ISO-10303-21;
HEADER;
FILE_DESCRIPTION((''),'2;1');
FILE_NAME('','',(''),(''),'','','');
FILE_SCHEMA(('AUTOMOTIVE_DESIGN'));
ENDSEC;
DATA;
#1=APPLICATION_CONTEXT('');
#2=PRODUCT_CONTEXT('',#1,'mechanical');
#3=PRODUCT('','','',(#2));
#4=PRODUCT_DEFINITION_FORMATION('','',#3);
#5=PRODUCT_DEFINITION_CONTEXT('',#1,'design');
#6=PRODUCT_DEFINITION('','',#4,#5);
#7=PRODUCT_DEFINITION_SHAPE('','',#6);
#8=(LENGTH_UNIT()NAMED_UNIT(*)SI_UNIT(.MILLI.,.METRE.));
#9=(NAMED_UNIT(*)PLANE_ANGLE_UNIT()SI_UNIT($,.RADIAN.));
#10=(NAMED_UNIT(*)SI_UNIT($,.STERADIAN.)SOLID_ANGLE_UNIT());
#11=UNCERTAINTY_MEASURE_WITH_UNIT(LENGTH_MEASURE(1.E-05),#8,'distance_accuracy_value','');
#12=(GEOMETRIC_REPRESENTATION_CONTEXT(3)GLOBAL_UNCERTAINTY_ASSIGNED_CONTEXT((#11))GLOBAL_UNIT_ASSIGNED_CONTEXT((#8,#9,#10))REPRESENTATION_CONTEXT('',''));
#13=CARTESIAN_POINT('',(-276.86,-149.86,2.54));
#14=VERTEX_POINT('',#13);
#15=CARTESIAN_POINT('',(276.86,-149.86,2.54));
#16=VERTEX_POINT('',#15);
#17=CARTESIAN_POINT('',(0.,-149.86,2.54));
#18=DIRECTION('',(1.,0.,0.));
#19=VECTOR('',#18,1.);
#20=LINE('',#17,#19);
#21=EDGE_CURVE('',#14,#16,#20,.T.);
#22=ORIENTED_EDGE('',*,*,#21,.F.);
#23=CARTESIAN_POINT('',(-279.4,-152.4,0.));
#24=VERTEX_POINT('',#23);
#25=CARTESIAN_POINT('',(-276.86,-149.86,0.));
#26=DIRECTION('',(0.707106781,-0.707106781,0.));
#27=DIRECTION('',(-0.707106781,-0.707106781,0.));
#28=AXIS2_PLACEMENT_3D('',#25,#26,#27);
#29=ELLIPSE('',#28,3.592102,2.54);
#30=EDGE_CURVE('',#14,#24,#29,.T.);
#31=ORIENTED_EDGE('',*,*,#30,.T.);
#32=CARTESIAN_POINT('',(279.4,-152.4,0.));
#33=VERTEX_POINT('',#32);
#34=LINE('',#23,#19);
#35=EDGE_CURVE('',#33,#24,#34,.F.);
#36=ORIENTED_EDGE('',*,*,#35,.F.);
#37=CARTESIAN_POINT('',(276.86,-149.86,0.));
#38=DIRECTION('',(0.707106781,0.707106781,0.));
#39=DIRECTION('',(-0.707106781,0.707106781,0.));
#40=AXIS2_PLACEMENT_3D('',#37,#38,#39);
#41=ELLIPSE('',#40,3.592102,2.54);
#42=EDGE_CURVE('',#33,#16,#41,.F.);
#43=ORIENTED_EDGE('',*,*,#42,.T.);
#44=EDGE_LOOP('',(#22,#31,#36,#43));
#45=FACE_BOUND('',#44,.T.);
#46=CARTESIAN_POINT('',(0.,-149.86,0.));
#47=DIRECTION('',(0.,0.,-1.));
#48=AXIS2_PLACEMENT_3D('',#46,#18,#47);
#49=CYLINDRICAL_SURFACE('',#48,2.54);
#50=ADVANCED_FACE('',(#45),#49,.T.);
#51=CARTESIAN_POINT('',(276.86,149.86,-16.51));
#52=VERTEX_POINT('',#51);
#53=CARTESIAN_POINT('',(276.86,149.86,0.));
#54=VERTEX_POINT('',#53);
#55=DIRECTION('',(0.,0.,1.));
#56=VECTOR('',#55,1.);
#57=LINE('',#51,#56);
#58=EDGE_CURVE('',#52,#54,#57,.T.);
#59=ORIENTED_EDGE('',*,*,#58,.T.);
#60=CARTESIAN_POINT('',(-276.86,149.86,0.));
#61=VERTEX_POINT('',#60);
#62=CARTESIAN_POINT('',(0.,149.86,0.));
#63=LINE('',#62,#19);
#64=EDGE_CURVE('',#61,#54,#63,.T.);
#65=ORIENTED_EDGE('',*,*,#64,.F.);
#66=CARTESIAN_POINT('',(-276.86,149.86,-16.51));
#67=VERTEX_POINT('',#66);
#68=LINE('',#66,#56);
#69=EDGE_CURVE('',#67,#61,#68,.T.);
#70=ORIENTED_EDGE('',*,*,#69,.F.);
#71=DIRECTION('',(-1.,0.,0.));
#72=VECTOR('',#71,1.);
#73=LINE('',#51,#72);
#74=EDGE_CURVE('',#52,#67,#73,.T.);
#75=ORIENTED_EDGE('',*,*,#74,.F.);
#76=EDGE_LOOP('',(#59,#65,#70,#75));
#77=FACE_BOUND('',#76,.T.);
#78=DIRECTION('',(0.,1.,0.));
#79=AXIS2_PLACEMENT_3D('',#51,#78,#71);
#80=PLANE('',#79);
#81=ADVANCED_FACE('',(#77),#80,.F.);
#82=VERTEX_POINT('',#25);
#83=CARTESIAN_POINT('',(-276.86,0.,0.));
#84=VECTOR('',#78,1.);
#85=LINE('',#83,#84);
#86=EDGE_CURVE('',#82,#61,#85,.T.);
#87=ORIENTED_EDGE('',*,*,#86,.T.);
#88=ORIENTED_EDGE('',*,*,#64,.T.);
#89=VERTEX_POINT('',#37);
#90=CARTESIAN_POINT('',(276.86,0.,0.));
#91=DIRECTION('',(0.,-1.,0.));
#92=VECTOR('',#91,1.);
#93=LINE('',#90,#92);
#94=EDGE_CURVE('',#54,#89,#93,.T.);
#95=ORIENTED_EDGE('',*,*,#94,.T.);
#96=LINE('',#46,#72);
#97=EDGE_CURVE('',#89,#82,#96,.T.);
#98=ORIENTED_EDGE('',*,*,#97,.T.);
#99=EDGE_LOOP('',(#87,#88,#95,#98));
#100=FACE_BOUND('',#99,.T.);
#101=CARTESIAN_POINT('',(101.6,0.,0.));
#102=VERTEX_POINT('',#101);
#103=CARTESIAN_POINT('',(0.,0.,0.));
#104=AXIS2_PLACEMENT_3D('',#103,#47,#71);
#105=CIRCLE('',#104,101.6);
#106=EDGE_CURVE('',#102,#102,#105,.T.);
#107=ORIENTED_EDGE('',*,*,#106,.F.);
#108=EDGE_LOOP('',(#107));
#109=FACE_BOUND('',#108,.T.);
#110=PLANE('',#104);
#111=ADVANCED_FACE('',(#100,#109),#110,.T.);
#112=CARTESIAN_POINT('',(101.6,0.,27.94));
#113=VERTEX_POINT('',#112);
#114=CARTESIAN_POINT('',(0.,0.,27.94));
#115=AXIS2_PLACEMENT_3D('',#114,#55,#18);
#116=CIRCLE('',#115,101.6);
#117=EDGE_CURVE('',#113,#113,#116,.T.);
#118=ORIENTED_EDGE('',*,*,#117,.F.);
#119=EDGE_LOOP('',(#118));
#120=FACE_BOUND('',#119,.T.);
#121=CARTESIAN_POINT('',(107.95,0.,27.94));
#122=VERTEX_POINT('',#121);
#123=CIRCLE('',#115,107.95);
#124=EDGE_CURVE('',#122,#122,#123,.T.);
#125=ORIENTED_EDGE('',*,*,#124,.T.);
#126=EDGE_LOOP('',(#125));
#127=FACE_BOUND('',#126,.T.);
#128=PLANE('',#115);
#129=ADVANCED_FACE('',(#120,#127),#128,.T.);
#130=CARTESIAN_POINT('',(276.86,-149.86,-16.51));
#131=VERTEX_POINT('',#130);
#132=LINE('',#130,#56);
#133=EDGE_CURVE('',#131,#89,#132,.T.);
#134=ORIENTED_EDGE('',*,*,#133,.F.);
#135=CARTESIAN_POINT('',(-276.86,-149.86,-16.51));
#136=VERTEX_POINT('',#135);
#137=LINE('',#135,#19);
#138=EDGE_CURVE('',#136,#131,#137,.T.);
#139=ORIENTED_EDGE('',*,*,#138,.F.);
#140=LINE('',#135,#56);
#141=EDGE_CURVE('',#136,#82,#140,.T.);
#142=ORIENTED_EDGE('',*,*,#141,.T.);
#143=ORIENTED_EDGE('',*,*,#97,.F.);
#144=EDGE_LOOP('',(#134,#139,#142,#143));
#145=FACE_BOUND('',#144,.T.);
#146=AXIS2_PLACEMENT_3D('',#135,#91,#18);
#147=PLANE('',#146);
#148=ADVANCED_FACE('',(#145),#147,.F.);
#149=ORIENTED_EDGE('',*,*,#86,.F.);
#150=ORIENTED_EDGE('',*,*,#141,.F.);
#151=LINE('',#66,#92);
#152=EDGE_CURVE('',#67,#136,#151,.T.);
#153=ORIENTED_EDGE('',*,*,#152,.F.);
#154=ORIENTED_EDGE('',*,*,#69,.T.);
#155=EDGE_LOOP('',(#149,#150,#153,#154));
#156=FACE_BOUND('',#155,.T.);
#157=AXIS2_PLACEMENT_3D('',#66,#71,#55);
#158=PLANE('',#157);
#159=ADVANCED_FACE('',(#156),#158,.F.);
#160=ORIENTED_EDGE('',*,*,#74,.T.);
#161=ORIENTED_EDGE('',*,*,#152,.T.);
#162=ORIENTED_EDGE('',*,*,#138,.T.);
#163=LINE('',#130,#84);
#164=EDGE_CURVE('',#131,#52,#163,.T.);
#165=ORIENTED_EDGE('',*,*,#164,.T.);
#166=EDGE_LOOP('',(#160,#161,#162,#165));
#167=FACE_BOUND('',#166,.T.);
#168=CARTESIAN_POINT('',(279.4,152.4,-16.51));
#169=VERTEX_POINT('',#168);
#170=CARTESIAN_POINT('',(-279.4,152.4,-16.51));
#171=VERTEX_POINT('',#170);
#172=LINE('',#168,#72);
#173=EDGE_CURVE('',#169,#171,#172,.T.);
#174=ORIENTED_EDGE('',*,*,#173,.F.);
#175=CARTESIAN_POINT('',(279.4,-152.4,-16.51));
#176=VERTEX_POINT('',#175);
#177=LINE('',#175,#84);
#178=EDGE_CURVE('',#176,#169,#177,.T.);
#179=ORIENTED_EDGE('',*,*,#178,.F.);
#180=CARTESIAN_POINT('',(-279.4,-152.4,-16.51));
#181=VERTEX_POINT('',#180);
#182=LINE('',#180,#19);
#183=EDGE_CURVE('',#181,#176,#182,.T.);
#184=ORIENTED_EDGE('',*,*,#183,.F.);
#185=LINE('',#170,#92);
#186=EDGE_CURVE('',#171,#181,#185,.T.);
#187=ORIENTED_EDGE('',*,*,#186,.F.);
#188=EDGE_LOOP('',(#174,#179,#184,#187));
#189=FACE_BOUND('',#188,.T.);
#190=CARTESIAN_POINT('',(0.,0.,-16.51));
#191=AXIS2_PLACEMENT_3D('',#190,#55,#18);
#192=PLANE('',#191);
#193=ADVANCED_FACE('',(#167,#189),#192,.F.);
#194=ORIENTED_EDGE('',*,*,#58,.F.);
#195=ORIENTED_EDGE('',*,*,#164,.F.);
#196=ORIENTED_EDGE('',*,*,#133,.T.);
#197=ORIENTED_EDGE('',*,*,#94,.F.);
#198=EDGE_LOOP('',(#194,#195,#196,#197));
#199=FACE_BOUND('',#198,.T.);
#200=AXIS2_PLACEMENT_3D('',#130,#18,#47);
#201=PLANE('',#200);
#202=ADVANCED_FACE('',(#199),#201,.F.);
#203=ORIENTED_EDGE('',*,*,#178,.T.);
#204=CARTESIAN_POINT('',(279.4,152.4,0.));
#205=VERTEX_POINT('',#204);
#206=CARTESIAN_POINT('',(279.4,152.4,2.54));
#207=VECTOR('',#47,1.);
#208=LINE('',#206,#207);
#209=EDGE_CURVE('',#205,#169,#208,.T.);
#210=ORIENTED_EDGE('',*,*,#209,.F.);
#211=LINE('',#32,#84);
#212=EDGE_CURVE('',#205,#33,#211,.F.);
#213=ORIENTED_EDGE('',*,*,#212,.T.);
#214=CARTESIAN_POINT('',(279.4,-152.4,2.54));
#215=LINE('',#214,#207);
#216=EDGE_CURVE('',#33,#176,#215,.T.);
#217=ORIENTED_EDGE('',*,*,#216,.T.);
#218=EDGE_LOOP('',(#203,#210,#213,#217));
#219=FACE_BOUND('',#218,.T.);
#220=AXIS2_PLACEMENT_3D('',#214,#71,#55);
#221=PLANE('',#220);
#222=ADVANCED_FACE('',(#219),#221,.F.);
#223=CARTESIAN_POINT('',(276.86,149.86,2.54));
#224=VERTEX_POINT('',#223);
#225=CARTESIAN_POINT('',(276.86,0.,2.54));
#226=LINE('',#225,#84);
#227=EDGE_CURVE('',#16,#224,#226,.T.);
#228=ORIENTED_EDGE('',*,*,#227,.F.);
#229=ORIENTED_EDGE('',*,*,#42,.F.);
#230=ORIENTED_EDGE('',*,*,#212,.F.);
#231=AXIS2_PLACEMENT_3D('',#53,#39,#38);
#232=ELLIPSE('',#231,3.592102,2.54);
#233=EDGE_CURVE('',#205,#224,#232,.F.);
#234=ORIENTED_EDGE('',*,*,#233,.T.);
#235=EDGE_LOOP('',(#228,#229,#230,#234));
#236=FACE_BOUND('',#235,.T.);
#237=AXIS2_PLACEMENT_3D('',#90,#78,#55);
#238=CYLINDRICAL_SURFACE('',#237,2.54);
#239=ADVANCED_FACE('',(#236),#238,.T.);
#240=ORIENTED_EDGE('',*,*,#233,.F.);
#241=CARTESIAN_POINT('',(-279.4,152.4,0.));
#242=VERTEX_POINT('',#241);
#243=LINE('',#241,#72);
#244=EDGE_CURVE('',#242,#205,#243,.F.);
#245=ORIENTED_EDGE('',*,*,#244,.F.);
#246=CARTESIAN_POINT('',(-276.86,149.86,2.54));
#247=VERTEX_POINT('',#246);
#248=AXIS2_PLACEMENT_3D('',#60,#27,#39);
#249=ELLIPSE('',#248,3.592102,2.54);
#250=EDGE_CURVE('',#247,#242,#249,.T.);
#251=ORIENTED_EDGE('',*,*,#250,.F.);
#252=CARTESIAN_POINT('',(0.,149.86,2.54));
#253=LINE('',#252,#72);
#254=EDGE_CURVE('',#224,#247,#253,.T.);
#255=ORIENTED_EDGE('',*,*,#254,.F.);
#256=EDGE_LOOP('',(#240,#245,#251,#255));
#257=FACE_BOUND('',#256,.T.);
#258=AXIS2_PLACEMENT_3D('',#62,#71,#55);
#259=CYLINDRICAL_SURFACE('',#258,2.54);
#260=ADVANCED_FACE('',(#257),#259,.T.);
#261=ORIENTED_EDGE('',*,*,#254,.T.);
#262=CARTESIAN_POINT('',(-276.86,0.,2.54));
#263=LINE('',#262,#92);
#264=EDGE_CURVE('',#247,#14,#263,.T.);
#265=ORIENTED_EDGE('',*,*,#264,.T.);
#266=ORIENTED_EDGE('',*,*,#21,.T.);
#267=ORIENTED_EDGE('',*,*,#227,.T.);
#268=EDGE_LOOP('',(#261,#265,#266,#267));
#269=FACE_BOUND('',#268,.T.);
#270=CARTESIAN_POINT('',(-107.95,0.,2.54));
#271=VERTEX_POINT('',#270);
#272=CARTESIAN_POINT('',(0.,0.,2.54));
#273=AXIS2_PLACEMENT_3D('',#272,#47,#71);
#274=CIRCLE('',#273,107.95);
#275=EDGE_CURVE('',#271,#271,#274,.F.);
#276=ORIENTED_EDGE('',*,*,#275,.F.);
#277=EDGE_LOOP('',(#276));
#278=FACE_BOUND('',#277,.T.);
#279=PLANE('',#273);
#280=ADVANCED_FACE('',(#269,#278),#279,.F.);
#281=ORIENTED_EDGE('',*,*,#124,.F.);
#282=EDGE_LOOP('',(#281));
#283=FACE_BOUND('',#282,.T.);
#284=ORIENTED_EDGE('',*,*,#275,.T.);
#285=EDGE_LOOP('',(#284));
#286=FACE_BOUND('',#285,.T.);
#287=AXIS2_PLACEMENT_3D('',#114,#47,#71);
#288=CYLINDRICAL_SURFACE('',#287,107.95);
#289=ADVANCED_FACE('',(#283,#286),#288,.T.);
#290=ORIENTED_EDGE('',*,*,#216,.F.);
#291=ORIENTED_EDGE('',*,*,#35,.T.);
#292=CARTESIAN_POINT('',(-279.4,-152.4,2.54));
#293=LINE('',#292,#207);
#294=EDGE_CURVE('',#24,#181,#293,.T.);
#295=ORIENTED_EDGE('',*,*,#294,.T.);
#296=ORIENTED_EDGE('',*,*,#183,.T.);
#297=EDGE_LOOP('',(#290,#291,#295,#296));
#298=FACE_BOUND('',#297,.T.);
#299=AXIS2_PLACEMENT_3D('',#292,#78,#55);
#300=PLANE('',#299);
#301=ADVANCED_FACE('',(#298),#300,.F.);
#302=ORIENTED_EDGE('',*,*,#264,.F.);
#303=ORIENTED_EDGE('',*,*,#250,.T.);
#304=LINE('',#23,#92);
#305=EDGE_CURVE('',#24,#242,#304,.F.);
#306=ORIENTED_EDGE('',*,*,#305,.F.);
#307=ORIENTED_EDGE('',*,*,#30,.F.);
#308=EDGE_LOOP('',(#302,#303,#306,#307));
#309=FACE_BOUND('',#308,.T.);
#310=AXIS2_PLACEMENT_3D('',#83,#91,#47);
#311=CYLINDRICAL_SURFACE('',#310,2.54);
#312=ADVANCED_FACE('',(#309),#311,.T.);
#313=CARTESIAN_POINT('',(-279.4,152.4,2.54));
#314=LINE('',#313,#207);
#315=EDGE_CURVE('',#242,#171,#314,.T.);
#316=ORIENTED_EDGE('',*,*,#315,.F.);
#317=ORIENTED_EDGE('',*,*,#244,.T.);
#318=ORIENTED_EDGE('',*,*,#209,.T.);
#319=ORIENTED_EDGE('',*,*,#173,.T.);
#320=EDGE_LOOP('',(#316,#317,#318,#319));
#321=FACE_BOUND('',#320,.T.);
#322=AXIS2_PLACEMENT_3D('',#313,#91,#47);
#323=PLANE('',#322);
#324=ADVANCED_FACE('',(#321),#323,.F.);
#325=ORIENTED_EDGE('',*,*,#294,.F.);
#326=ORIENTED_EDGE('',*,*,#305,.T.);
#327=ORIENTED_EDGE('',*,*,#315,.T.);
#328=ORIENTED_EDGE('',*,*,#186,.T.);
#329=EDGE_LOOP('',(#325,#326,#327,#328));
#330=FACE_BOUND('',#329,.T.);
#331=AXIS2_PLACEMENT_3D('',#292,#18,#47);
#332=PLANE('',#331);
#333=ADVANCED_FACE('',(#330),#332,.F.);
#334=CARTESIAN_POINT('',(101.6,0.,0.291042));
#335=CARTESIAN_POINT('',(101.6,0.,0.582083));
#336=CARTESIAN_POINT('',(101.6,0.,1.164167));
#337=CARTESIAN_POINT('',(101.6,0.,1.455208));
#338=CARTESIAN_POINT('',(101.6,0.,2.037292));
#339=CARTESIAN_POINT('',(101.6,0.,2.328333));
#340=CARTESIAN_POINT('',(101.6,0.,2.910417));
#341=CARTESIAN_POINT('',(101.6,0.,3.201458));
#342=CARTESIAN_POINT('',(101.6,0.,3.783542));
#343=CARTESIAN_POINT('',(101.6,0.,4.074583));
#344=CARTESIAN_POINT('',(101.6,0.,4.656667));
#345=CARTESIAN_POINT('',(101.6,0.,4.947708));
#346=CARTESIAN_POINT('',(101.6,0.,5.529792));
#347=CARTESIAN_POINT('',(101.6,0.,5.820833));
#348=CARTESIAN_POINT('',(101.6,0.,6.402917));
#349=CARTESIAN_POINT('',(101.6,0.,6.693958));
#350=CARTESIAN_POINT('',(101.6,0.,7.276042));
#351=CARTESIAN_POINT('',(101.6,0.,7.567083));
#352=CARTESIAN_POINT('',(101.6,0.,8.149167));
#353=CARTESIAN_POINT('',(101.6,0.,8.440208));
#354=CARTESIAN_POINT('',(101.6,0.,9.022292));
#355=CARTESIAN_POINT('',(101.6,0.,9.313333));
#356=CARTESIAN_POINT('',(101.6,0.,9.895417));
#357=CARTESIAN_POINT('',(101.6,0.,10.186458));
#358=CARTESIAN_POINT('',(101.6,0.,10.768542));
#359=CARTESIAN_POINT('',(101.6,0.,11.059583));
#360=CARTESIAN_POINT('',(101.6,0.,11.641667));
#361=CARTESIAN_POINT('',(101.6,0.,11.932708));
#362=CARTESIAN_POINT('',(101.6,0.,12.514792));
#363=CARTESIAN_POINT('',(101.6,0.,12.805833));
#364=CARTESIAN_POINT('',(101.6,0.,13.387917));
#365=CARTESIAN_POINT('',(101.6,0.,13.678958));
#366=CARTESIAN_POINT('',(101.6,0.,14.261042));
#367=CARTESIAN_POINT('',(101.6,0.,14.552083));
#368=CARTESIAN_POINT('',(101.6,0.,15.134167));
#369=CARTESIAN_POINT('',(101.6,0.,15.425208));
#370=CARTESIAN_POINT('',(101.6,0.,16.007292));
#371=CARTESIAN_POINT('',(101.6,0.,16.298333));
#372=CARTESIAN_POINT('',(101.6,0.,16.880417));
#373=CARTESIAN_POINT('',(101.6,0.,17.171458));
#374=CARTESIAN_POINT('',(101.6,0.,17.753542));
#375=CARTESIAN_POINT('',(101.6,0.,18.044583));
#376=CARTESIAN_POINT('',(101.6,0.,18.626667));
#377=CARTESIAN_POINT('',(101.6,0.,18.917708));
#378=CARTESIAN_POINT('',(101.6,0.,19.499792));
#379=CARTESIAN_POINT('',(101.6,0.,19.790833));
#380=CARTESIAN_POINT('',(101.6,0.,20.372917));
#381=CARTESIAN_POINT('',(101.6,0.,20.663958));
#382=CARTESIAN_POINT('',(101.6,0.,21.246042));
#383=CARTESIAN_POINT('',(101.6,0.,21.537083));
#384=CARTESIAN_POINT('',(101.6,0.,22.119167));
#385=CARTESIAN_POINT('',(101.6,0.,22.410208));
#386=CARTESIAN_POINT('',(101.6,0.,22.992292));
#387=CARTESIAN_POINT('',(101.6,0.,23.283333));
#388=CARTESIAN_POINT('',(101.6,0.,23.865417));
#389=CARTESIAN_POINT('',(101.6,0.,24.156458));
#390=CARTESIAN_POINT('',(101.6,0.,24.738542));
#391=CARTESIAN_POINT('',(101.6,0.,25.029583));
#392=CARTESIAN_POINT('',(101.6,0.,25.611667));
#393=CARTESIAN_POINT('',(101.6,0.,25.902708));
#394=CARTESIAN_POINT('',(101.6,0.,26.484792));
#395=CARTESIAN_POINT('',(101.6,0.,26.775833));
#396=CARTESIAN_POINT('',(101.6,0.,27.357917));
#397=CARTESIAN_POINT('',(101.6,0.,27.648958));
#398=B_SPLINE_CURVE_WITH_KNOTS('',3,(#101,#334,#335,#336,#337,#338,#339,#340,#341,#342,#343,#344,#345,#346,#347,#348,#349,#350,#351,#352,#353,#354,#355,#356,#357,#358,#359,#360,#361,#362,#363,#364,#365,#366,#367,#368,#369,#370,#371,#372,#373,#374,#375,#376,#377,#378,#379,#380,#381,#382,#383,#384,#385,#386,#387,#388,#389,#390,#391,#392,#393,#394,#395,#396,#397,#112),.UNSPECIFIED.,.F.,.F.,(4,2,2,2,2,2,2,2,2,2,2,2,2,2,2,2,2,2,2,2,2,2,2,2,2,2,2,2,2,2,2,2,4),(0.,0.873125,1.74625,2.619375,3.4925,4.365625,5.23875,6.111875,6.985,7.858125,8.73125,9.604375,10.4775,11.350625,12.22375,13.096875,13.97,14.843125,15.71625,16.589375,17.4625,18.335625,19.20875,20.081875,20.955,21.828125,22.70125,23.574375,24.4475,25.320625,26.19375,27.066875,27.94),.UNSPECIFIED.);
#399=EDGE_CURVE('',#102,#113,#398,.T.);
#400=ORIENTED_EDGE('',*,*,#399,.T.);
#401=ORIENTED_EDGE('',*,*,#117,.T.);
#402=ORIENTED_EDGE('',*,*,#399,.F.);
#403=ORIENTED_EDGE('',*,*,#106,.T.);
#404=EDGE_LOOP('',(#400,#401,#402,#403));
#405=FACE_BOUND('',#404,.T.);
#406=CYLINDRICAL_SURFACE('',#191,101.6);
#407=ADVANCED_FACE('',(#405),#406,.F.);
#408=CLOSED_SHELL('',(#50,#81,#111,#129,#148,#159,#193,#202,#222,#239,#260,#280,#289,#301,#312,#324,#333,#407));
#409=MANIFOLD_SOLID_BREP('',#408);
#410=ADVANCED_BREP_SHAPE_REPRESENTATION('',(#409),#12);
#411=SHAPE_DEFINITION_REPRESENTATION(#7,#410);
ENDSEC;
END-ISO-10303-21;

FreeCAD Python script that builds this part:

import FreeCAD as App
import Part
import Sketcher
Q = App.Units.Quantity


def edges_at(feature, points):
    """Names of the edges that pass closest to the given points."""
    edges = feature.Shape.Edges
    near = lambda p: min(range(len(edges)), key=lambda i: edges[i].distToShape(Part.Vertex(*p))[0])
    return sorted({f"Edge{near(p) + 1}" for p in points})

doc = App.newDocument("Part")
body = doc.addObject("PartDesign::Body", "Body")

# Sketch on XY plane
sketch1 = body.newObject("Sketcher::SketchObject", "Sketch")
sketch1.AttachmentSupport = (doc.getObject("XY_Plane"), [""])
sketch1.MapMode = "FlatFace"
sketch1.addGeometry([
    Part.LineSegment(App.Vector(-279, 152, 0), App.Vector(-279, -152, 0)),
    Part.LineSegment(App.Vector(-279, -152, 0), App.Vector(279, -152, 0)),
    Part.LineSegment(App.Vector(279, -152, 0), App.Vector(279, 152, 0)),
    Part.LineSegment(App.Vector(279, 152, 0), App.Vector(-279, 152, 0)),
], False)
sketch1.addConstraint([
    Sketcher.Constraint("Coincident", 0, 2, 1, 1),
    Sketcher.Constraint("Coincident", 1, 2, 2, 1),
    Sketcher.Constraint("Coincident", 2, 2, 3, 1),
    Sketcher.Constraint("Coincident", 3, 2, 0, 1),
    Sketcher.Constraint("Vertical", 0),
    Sketcher.Constraint("Horizontal", 1),
    Sketcher.Constraint("Vertical", 2),
    Sketcher.Constraint("Horizontal", 3),
    Sketcher.Constraint("Symmetric", 0, 2, 2, 2, -1, 1),
    Sketcher.Constraint("DistanceX", 1, 1, 1, 2, Q("22 in")),
    Sketcher.Constraint("DistanceY", 0, 2, 0, 1, Q("12 in")),
])
pad1 = body.newObject("PartDesign::Pad", "Pad")
pad1.Profile = sketch1
pad1.Length = Q("0.1 in")

# Sketch on XY plane
sketch2 = body.newObject("Sketcher::SketchObject", "Sketch001")
sketch2.AttachmentSupport = (doc.getObject("XY_Plane"), [""])
sketch2.MapMode = "FlatFace"
sketch2.AttachmentOffset = App.Placement(App.Vector(0, 0, 0.1 * 25.4), App.Rotation())
sketch2.addGeometry([
    Part.LineSegment(App.Vector(-279, 152, 0), App.Vector(-279, -152, 0)),  # 0
    Part.LineSegment(App.Vector(-279, -152, 0), App.Vector(279, -152, 0)),  # 1
    Part.LineSegment(App.Vector(279, -152, 0), App.Vector(279, 152, 0)),  # 2
    Part.LineSegment(App.Vector(279, 152, 0), App.Vector(-279, 152, 0)),  # 3
    Part.LineSegment(App.Vector(277, -150, 0), App.Vector(-277, -150, 0)),  # 4
    Part.LineSegment(App.Vector(-277, -150, 0), App.Vector(-277, 150, 0)),  # 5
    Part.LineSegment(App.Vector(-277, 150, 0), App.Vector(277, 150, 0)),  # 6
    Part.LineSegment(App.Vector(277, 150, 0), App.Vector(277, -150, 0)),  # 7
], False)
sketch2.addConstraint([
    Sketcher.Constraint("Coincident", 0, 2, 1, 1),
    Sketcher.Constraint("Coincident", 1, 2, 2, 1),
    Sketcher.Constraint("Coincident", 2, 2, 3, 1),
    Sketcher.Constraint("Coincident", 3, 2, 0, 1),
    Sketcher.Constraint("Coincident", 4, 2, 5, 1),
    Sketcher.Constraint("Coincident", 5, 2, 6, 1),
    Sketcher.Constraint("Coincident", 6, 2, 7, 1),
    Sketcher.Constraint("Coincident", 7, 2, 4, 1),
    Sketcher.Constraint("Vertical", 0),
    Sketcher.Constraint("Horizontal", 1),
    Sketcher.Constraint("Vertical", 2),
    Sketcher.Constraint("Horizontal", 3),
    Sketcher.Constraint("Horizontal", 4),
    Sketcher.Constraint("Vertical", 5),
    Sketcher.Constraint("Horizontal", 6),
    Sketcher.Constraint("Vertical", 7),
    Sketcher.Constraint("Symmetric", 0, 2, 2, 2, -1, 1),
    Sketcher.Constraint("Symmetric", 4, 2, 6, 2, -1, 1),
    Sketcher.Constraint("DistanceX", 1, 1, 1, 2, Q("22 in")),
    Sketcher.Constraint("DistanceY", 0, 2, 0, 1, Q("12 in")),
    Sketcher.Constraint("DistanceX", 4, 2, 4, 1, Q("21.8 in")),
    Sketcher.Constraint("DistanceY", 5, 1, 5, 2, Q("11.8 in")),
])
pad2 = body.newObject("PartDesign::Pad", "Pad001")
pad2.Profile = sketch2
pad2.Length = Q("0.75 in")
pad2.Reversed = True
doc.recompute()

fillet = body.newObject("PartDesign::Fillet", "Fillet")
fillet.Base = (pad2, edges_at(pad2, [
    (-279.4, 0, 2.54),
    (0, -152.4, 2.54),
    (279.4, 0, 2.54),
    (0, 152.4, 2.54),
]))
fillet.Radius = Q("0.1 in")

# Sketch on XY plane
sketch3 = body.newObject("Sketcher::SketchObject", "Sketch002")
sketch3.AttachmentSupport = (doc.getObject("XY_Plane"), [""])
sketch3.MapMode = "FlatFace"
sketch3.AttachmentOffset = App.Placement(App.Vector(0, 0, 0.1 * 25.4), App.Rotation())
sketch3.addGeometry(Part.Circle(App.Vector(0, 0, 0), App.Vector(0, 0, 1), 102), False)
sketch3.addConstraint([
    Sketcher.Constraint("Coincident", 0, 3, -1, 1),
    Sketcher.Constraint("Diameter", 0, Q("8 in")),
])
pocket1 = body.newObject("PartDesign::Pocket", "Pocket")
pocket1.Profile = sketch3
pocket1.Length = Q("0.75 in")

# Sketch on XY plane
sketch4 = body.newObject("Sketcher::SketchObject", "Sketch003")
sketch4.AttachmentSupport = (doc.getObject("XY_Plane"), [""])
sketch4.MapMode = "FlatFace"
sketch4.AttachmentOffset = App.Placement(App.Vector(0, 0, 1.1 * 25.4), App.Rotation())
sketch4.addGeometry([
    Part.Circle(App.Vector(0, 0, 0), App.Vector(0, 0, 1), 108),
    Part.Circle(App.Vector(0, 0, 0), App.Vector(0, 0, 1), 102),
], False)
sketch4.addConstraint([
    Sketcher.Constraint("Coincident", 0, 3, -1, 1),
    Sketcher.Constraint("Coincident", 1, 3, -1, 1),
    Sketcher.Constraint("Diameter", 1, Q("8 in")),
    Sketcher.Constraint("Diameter", 0, Q("8.5 in")),
])
pad3 = body.newObject("PartDesign::Pad", "Pad002")
pad3.Profile = sketch4
pad3.Length = Q("1 in")
pad3.Reversed = True

doc.recompute()
